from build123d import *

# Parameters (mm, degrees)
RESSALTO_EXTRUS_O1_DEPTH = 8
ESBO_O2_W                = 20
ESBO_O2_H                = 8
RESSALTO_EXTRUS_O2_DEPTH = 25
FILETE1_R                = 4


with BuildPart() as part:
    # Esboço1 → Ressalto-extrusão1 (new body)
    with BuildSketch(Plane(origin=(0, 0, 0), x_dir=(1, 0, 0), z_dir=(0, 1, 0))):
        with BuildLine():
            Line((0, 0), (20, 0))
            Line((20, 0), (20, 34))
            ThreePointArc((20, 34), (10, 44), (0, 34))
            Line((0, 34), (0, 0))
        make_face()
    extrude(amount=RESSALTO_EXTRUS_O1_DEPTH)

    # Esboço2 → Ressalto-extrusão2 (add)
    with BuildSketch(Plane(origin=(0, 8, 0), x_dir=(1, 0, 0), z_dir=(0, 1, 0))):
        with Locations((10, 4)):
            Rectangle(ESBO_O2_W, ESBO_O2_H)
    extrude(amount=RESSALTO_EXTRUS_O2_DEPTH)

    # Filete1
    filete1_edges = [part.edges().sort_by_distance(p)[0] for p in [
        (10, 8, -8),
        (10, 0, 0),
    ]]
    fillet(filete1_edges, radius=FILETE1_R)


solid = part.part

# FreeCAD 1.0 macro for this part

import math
import FreeCAD as App
import Part
import Sketcher

V = App.Vector
Q = App.Units.Quantity


def edges_at(feature, points):
    """Names of the edges that pass closest to the given points."""
    edges = feature.Shape.Edges
    near = lambda p: min(range(len(edges)), key=lambda i: edges[i].distToShape(Part.Vertex(*p))[0])
    return sorted({f"Edge{near(p) + 1}" for p in points})


def add_polygon(sketch, points):
    """Adds a closed chain of lines whose ends are joined by coincident constraints."""
    first, n = sketch.GeometryCount, len(points)
    for a, b in zip(points, points[1:] + points[:1]):
        sketch.addGeometry(Part.LineSegment(App.Vector(*a, 0), App.Vector(*b, 0)), False)
    for i in range(n):
        sketch.addConstraint(Sketcher.Constraint("Coincident", first + i, 2, first + (i + 1) % n, 1))

doc = App.newDocument("Part")
body = doc.addObject("PartDesign::Body", "Body")

# Sketch on XZ plane
sketch1 = body.newObject("Sketcher::SketchObject", "Sketch")
sketch1.AttachmentSupport = (doc.getObject("XZ_Plane"), [""])
sketch1.MapMode = "FlatFace"
sketch1.addGeometry([
    Part.LineSegment(V(0, 0, 0), V(20, 0, 0)),
    Part.LineSegment(V(20, 0, 0), V(20, -34, 0)),
    Part.ArcOfCircle(Part.Circle(V(10, -34, 0), V(0, 0, 1), 10), math.radians(180), math.radians(360)),
    Part.LineSegment(V(0, -34, 0), V(0, 0, 0)),
], False)
sketch1.addConstraint([
    Sketcher.Constraint("Coincident", 0, 2, 1, 1),
    Sketcher.Constraint("Tangent", 1, 2, 2, 2),
    Sketcher.Constraint("Tangent", 2, 1, 3, 1),
    Sketcher.Constraint("Coincident", 3, 2, 0, 1),
    Sketcher.Constraint("Horizontal", 0),
    Sketcher.Constraint("Vertical", 1),
    Sketcher.Constraint("Vertical", 3),
    Sketcher.Constraint("Coincident", 3, 2, -1, 1),
    Sketcher.Constraint("Radius", 2, Q("10 mm")),
    Sketcher.Constraint("DistanceY", 1, 2, 1, 1, Q("34 mm")),
])
pad1 = body.newObject("PartDesign::Pad", "Pad")
pad1.Profile = sketch1
pad1.Length = 8
pad1.Reversed = True

# Sketch on XZ plane
sketch2 = body.newObject("Sketcher::SketchObject", "Sketch001")
sketch2.AttachmentSupport = (doc.getObject("XZ_Plane"), [""])
sketch2.MapMode = "FlatFace"
sketch2.AttachmentOffset = App.Placement(V(0, 0, -8), App.Rotation())
add_polygon(sketch2, [(0, -8), (0, 0), (20, 0), (20, -8)])  # lines 0-3
sketch2.addConstraint([
    Sketcher.Constraint("Vertical", 0),
    Sketcher.Constraint("Horizontal", 1),
    Sketcher.Constraint("Vertical", 2),
    Sketcher.Constraint("Horizontal", 3),
    Sketcher.Constraint("Coincident", 0, 2, -1, 1),
    Sketcher.Constraint("DistanceX", 1, 1, 1, 2, Q("20 mm")),
    Sketcher.Constraint("DistanceY", 0, 1, 0, 2, Q("8 mm")),
])
pad2 = body.newObject("PartDesign::Pad", "Pad001")
pad2.Profile = sketch2
pad2.Length = 25
pad2.Reversed = True
doc.recompute()

fillet = body.newObject("PartDesign::Fillet", "Fillet")
fillet.Base = (pad2, edges_at(pad2, [(10, 8, -8), (10, 0, 0)]))
fillet.Radius = 4

doc.recompute()
